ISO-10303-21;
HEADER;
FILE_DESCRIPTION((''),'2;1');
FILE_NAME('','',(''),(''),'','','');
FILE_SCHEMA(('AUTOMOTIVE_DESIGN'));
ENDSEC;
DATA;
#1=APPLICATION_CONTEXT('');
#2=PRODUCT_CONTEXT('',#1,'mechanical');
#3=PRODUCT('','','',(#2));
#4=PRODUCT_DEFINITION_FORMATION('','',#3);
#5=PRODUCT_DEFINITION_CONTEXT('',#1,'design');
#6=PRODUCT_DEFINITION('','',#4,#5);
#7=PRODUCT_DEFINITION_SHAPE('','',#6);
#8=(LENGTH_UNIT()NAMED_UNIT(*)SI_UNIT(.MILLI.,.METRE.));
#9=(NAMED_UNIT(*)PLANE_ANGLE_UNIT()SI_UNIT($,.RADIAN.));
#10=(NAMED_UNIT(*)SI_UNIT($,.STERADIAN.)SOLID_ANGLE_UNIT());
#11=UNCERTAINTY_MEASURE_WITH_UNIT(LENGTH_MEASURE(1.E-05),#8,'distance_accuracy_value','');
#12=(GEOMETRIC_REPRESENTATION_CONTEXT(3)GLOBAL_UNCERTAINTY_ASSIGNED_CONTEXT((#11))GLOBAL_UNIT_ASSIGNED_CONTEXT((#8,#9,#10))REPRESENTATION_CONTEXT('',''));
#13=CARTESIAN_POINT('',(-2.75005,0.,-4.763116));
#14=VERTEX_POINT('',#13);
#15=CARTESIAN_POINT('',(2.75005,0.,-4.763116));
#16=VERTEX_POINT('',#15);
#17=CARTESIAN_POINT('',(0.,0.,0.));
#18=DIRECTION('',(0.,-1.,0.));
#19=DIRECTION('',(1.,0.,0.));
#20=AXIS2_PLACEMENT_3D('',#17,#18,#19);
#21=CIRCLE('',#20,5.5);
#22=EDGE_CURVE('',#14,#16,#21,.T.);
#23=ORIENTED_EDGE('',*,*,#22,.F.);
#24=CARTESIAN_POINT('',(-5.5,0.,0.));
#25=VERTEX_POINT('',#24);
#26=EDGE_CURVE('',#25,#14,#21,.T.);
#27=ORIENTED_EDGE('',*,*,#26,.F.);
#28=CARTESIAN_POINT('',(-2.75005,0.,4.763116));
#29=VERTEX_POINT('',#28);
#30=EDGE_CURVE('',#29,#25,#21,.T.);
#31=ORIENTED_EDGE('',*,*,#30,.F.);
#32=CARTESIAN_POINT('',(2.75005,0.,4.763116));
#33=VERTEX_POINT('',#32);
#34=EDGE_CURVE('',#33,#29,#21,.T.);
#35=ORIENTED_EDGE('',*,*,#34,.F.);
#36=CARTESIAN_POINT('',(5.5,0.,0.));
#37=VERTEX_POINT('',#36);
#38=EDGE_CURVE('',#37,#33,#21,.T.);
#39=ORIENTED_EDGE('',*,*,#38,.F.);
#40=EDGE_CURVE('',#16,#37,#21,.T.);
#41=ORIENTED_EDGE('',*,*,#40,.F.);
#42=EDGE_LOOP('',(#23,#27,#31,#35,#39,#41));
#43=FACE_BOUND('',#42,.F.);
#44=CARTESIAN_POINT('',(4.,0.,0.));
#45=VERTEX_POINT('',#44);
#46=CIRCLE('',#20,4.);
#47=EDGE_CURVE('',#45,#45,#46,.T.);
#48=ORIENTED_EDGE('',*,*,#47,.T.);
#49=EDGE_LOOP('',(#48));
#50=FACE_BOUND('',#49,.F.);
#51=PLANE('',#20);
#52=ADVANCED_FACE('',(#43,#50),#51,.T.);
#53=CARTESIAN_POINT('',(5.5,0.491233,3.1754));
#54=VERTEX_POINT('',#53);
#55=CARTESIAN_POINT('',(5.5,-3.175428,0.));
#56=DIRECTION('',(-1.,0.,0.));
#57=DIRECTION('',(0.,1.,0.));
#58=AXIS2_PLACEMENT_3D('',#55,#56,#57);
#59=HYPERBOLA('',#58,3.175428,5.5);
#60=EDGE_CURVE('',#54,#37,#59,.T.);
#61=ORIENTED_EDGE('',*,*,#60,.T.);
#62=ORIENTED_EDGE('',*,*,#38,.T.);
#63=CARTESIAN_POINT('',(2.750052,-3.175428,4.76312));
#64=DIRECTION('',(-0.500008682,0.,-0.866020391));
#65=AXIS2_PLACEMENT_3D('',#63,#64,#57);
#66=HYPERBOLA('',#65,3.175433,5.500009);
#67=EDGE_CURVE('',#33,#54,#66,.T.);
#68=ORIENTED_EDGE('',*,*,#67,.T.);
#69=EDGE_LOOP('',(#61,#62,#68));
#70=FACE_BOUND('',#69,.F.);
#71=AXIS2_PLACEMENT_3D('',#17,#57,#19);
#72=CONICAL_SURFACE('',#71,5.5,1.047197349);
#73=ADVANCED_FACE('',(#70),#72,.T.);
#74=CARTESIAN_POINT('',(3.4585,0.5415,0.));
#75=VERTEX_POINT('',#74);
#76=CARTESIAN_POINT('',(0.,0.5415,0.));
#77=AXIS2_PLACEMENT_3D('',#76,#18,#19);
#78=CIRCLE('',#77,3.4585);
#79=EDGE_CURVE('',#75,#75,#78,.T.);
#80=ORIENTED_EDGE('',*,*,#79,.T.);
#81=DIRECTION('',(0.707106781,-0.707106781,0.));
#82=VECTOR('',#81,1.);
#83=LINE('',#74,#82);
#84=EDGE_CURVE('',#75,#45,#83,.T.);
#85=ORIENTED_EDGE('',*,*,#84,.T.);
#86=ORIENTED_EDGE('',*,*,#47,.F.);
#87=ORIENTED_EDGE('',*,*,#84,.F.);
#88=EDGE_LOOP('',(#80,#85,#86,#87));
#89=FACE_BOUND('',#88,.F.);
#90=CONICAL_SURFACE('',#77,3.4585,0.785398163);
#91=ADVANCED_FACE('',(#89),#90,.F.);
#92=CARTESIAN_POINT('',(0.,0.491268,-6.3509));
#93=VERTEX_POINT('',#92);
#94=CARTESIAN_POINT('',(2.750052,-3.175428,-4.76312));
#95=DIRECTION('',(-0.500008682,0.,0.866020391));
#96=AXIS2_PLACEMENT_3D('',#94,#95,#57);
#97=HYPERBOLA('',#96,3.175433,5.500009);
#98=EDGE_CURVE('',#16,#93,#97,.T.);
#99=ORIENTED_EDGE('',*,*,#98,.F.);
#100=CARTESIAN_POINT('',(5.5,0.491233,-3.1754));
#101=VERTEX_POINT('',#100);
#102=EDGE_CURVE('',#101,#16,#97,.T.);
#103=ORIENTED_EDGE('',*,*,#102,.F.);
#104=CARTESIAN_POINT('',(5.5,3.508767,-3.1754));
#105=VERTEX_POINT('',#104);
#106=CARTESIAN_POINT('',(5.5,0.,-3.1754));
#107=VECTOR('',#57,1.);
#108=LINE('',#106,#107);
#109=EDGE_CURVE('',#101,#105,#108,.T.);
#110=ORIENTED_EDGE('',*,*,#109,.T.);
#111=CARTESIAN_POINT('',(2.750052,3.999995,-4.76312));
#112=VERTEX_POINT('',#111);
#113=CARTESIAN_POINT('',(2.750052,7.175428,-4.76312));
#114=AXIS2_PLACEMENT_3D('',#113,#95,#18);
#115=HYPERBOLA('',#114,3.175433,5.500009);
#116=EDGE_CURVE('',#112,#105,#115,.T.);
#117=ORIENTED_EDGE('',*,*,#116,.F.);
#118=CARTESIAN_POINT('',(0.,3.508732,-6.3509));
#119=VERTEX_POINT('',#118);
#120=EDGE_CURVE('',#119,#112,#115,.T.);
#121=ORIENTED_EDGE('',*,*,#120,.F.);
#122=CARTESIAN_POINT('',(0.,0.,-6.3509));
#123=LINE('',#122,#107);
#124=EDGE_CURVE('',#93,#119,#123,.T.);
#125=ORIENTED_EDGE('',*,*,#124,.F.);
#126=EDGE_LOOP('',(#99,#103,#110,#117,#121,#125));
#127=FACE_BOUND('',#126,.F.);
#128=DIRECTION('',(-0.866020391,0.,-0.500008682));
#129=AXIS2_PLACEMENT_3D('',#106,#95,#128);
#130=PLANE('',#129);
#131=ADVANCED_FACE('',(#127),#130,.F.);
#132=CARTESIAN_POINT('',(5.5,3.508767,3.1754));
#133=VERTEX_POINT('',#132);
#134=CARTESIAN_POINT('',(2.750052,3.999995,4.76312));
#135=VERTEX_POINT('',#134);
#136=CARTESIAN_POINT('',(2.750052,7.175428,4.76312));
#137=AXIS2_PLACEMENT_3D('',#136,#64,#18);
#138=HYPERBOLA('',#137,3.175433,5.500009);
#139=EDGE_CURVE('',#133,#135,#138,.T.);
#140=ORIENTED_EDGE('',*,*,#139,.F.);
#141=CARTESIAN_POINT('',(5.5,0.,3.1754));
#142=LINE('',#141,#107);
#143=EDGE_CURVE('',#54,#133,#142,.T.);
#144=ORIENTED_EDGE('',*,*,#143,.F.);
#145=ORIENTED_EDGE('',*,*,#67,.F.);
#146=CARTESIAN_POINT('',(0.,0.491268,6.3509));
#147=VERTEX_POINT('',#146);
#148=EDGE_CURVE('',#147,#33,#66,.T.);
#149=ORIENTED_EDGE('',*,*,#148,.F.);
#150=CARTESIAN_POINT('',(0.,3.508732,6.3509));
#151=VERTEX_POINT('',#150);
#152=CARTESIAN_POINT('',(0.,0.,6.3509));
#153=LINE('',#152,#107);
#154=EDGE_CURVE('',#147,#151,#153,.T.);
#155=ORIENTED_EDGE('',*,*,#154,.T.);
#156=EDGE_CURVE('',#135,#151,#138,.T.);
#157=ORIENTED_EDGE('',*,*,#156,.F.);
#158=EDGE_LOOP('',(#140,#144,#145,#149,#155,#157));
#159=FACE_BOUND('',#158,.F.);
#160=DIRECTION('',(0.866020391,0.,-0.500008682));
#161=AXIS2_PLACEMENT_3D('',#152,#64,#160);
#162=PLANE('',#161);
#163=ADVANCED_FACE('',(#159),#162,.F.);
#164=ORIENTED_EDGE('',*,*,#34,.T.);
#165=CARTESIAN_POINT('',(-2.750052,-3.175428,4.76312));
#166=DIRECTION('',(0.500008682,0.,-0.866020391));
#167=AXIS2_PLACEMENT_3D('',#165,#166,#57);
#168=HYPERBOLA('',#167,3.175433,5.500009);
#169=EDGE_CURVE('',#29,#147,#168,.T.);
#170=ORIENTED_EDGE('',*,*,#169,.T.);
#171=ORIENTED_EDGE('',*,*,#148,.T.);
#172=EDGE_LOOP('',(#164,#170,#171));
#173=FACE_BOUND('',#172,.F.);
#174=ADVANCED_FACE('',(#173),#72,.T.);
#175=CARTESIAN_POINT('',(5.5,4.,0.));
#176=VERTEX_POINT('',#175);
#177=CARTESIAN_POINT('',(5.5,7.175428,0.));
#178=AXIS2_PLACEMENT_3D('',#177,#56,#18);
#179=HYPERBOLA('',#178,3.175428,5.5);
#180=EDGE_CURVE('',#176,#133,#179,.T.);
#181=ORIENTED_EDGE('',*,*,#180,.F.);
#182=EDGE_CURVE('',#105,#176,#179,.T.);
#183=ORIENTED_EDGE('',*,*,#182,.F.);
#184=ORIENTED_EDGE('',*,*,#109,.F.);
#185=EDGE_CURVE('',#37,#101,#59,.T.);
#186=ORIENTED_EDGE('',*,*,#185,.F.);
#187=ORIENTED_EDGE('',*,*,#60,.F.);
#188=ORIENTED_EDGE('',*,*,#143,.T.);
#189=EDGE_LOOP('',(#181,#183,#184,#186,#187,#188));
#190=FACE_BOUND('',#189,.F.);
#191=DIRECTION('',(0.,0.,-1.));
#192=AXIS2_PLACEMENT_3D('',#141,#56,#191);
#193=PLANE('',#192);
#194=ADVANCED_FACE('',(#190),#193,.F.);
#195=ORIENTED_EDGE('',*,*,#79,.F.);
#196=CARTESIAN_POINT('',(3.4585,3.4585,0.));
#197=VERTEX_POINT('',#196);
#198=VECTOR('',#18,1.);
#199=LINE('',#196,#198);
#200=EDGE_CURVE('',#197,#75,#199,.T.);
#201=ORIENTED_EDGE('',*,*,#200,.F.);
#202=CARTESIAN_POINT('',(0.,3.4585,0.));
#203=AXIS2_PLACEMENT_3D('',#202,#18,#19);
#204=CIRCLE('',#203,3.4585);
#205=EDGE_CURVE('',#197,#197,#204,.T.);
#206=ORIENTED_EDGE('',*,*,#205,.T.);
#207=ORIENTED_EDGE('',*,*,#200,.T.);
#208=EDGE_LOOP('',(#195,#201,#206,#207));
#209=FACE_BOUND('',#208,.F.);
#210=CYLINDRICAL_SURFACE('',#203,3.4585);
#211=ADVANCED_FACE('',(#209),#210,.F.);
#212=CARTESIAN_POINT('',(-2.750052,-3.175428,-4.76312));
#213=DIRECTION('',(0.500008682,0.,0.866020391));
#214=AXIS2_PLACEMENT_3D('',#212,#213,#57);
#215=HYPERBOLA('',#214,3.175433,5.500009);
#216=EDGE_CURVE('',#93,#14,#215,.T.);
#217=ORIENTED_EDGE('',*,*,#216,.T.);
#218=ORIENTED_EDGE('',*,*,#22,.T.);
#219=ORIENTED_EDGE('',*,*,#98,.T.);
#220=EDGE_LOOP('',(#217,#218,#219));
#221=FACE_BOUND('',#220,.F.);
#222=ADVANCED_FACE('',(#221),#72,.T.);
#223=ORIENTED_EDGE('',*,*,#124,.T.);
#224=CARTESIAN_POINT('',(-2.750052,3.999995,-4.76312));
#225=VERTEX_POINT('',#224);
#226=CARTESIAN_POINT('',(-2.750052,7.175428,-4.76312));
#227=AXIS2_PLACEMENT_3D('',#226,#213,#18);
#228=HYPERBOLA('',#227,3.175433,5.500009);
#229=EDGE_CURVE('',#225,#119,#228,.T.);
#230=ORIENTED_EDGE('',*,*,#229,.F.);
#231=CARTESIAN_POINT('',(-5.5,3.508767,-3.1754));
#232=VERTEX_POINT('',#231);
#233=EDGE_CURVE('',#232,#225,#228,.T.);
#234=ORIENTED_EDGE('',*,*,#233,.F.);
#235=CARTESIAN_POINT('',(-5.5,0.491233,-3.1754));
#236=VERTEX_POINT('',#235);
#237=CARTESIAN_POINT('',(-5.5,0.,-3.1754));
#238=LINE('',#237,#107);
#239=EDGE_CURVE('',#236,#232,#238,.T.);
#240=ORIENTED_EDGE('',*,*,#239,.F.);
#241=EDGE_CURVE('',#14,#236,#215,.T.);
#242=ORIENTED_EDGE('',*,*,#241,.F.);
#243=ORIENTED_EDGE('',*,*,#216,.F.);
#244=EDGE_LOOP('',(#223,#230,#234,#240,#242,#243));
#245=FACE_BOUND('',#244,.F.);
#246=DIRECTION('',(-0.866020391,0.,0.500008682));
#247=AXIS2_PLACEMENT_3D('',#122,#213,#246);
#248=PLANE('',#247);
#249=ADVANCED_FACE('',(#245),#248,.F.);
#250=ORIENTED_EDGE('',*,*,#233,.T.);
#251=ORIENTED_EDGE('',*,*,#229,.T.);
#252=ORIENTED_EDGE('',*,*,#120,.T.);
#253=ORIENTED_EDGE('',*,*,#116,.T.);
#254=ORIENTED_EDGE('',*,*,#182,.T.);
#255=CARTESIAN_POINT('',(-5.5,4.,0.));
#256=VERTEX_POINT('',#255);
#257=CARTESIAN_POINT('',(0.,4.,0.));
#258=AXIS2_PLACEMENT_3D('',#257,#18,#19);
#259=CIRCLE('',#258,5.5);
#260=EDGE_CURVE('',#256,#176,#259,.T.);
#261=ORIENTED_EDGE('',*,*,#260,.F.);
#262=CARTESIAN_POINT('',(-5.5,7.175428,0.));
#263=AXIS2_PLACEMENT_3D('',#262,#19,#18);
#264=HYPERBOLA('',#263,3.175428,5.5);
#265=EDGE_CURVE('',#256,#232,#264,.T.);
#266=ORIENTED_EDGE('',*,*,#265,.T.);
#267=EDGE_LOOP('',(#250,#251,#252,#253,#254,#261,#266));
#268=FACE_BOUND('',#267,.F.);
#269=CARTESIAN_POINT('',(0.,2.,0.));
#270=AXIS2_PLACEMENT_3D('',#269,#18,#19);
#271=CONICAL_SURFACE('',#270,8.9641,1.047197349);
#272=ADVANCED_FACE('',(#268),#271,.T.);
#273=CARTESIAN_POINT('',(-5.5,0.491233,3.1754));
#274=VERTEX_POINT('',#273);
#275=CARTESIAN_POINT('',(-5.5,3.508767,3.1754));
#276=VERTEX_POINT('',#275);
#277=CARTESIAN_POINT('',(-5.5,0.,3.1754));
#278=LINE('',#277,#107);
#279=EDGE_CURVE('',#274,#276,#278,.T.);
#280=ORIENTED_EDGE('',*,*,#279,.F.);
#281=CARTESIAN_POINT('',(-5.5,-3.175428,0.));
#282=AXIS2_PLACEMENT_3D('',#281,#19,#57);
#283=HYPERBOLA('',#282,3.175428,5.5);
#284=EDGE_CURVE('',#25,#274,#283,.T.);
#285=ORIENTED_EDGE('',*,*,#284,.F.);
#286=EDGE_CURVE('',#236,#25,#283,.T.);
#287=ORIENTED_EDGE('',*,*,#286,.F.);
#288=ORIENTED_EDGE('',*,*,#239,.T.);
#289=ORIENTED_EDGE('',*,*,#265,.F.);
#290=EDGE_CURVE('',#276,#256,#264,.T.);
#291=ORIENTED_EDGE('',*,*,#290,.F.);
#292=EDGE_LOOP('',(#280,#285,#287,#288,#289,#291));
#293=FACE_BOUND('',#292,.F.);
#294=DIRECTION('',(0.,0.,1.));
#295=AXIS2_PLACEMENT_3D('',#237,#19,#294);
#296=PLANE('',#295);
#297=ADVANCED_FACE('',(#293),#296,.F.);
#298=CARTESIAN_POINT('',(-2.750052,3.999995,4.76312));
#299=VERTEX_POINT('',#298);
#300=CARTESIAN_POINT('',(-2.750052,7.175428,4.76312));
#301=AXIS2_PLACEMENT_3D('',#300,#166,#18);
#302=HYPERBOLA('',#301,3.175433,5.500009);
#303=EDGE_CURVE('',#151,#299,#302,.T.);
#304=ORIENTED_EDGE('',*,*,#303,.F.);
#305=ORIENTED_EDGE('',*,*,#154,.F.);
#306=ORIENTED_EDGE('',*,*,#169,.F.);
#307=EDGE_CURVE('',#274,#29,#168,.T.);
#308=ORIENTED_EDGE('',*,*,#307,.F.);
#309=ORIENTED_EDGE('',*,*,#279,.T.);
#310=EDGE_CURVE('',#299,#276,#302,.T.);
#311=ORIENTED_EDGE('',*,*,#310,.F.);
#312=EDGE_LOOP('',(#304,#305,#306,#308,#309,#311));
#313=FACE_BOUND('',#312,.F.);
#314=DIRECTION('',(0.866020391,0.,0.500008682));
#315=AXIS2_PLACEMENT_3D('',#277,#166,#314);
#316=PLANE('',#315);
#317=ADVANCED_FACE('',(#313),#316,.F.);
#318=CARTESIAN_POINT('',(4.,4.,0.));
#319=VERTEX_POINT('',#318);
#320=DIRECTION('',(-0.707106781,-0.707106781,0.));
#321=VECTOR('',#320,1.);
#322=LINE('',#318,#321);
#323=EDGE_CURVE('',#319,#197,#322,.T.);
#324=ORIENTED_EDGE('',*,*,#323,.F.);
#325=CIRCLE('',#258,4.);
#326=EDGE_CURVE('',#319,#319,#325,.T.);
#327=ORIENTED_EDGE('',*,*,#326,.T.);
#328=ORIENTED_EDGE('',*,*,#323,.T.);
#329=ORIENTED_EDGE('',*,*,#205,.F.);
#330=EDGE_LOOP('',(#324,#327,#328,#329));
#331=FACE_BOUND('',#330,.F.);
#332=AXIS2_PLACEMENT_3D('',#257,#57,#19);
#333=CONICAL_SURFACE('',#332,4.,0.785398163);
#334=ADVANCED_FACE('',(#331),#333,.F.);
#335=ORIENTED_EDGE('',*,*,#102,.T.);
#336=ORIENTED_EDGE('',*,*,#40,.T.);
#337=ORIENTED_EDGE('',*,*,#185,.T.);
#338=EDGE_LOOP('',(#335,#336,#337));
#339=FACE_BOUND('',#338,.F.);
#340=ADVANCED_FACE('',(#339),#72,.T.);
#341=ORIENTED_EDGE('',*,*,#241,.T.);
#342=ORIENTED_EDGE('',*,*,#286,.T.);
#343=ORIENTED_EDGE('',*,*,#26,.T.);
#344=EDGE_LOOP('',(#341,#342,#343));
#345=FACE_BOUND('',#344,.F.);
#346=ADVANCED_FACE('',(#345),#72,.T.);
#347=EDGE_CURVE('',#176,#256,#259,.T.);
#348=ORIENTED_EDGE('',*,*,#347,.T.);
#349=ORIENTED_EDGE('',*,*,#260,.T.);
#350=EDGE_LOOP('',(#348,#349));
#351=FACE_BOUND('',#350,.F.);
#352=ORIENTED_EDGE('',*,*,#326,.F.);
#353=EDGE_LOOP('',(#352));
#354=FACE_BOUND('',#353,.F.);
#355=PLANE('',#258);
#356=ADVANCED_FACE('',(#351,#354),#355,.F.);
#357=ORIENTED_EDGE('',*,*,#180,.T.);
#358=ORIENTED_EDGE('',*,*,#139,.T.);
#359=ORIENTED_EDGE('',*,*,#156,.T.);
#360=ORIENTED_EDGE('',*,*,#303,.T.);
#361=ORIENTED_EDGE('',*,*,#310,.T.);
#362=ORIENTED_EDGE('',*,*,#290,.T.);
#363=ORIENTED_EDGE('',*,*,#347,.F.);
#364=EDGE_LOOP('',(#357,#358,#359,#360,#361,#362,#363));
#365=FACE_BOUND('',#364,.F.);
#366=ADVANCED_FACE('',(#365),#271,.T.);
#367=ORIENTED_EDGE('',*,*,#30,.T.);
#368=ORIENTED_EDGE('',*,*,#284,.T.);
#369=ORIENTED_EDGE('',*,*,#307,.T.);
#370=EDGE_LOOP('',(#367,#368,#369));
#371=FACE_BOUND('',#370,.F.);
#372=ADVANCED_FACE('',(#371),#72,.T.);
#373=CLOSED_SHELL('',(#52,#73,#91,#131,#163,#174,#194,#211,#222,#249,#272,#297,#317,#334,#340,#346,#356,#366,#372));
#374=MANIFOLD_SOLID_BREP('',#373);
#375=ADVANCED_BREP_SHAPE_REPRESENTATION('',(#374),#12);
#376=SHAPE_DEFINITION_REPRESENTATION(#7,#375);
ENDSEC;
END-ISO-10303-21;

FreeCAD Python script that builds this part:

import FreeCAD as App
import Part
import Sketcher
Q = App.Units.Quantity

doc = App.newDocument("Part")
body = doc.addObject("PartDesign::Body", "Body")

# Sketch on XY plane
sketch1 = doc.addObject("Sketcher::SketchObject", "Sketch")
body.addObject(sketch1)
sketch1.AttachmentSupport = (doc.XY_Plane, [""])
sketch1.MapMode = "FlatFace"
sketch1.addGeometry(Part.LineSegment(App.Vector(4, 4, 0), App.Vector(3.5, 3.5, 0)), False)
sketch1.addGeometry(Part.LineSegment(App.Vector(3.5, 3.5, 0), App.Vector(3.5, 0.5, 0)), False)
sketch1.addGeometry(Part.LineSegment(App.Vector(3.5, 0.5, 0), App.Vector(4, 0, 0)), False)
sketch1.addGeometry(Part.LineSegment(App.Vector(4, 0, 0), App.Vector(5.5, 0, 0)), False)
sketch1.addGeometry(Part.LineSegment(App.Vector(5.5, 0, 0), App.Vector(9, 2, 0)), False)
sketch1.addGeometry(Part.LineSegment(App.Vector(9, 2, 0), App.Vector(5.5, 4, 0)), False)
sketch1.addGeometry(Part.LineSegment(App.Vector(5.5, 4, 0), App.Vector(4, 4, 0)), False)
sketch1.addConstraint(Sketcher.Constraint("Coincident", 0, 2, 1, 1))
sketch1.addConstraint(Sketcher.Constraint("Coincident", 1, 2, 2, 1))
sketch1.addConstraint(Sketcher.Constraint("Coincident", 2, 2, 3, 1))
sketch1.addConstraint(Sketcher.Constraint("Coincident", 3, 2, 4, 1))
sketch1.addConstraint(Sketcher.Constraint("Coincident", 4, 2, 5, 1))
sketch1.addConstraint(Sketcher.Constraint("Coincident", 5, 2, 6, 1))
sketch1.addConstraint(Sketcher.Constraint("Coincident", 6, 2, 0, 1))
sketch1.addConstraint(Sketcher.Constraint("Vertical", 1))
sketch1.addConstraint(Sketcher.Constraint("Horizontal", 3))
sketch1.addConstraint(Sketcher.Constraint("Horizontal", 6))
sketch1.addConstraint(Sketcher.Constraint("PointOnObject", 2, 2, -1))
sketch1.addConstraint(Sketcher.Constraint("Perpendicular", 0, 2))
sketch1.addConstraint(Sketcher.Constraint("Vertical", 3, 2, 5, 2))
sketch1.addConstraint(Sketcher.Constraint("Vertical", 2, 2, 6, 2))
sketch1.addConstraint(Sketcher.Constraint("Equal", 0, 2))
sketch1.addConstraint(Sketcher.Constraint("Equal", 4, 5))
sketch1.addConstraint(Sketcher.Constraint("Angle", 4, Q("30 deg")))
sketch1.addConstraint(Sketcher.Constraint("Distance", 4, Q("4 mm")))
sketch1.addConstraint(Sketcher.Constraint("DistanceX", 3, 1, 3, 2, Q("1.5 mm")))
sketch1.addConstraint(Sketcher.Constraint("DistanceX", -1, 1, 2, 2, Q("4 mm")))
sketch1.addConstraint(Sketcher.Constraint("DistanceY", 1, 2, 1, 1, Q("2.917 mm")))
revolution = doc.addObject("PartDesign::Revolution", "Revolution")
body.addObject(revolution)
revolution.Profile = sketch1
revolution.ReferenceAxis = (sketch1, ["V_Axis"])
revolution.Angle = 360

# Sketch on XZ plane
sketch2 = doc.addObject("Sketcher::SketchObject", "Sketch001")
body.addObject(sketch2)
sketch2.AttachmentSupport = (doc.XZ_Plane, [""])
sketch2.MapMode = "FlatFace"
sketch2.addGeometry(Part.LineSegment(App.Vector(-50, -50, 0), App.Vector(-50, 50, 0)), False)
sketch2.addGeometry(Part.LineSegment(App.Vector(-50, 50, 0), App.Vector(50, 50, 0)), False)
sketch2.addGeometry(Part.LineSegment(App.Vector(50, 50, 0), App.Vector(50, -50, 0)), False)
sketch2.addGeometry(Part.LineSegment(App.Vector(50, -50, 0), App.Vector(-50, -50, 0)), False)
sketch2.addGeometry(Part.LineSegment(App.Vector(0, 6, 0), App.Vector(-6, 3, 0)), False)
sketch2.addGeometry(Part.LineSegment(App.Vector(-6, 3, 0), App.Vector(-6, -3, 0)), False)
sketch2.addGeometry(Part.LineSegment(App.Vector(-6, -3, 0), App.Vector(0, -6, 0)), False)
sketch2.addGeometry(Part.LineSegment(App.Vector(0, -6, 0), App.Vector(6, -3, 0)), False)
sketch2.addGeometry(Part.LineSegment(App.Vector(6, -3, 0), App.Vector(6, 3, 0)), False)
sketch2.addGeometry(Part.LineSegment(App.Vector(6, 3, 0), App.Vector(0, 6, 0)), False)
sketch2.addConstraint(Sketcher.Constraint("Coincident", 0, 2, 1, 1))
sketch2.addConstraint(Sketcher.Constraint("Coincident", 1, 2, 2, 1))
sketch2.addConstraint(Sketcher.Constraint("Coincident", 2, 2, 3, 1))
sketch2.addConstraint(Sketcher.Constraint("Coincident", 3, 2, 0, 1))
sketch2.addConstraint(Sketcher.Constraint("Coincident", 4, 2, 5, 1))
sketch2.addConstraint(Sketcher.Constraint("Coincident", 5, 2, 6, 1))
sketch2.addConstraint(Sketcher.Constraint("Coincident", 6, 2, 7, 1))
sketch2.addConstraint(Sketcher.Constraint("Coincident", 7, 2, 8, 1))
sketch2.addConstraint(Sketcher.Constraint("Coincident", 8, 2, 9, 1))
sketch2.addConstraint(Sketcher.Constraint("Coincident", 9, 2, 4, 1))
sketch2.addConstraint(Sketcher.Constraint("Vertical", 0))
sketch2.addConstraint(Sketcher.Constraint("Horizontal", 1))
sketch2.addConstraint(Sketcher.Constraint("Vertical", 2))
sketch2.addConstraint(Sketcher.Constraint("Horizontal", 3))
sketch2.addConstraint(Sketcher.Constraint("Vertical", 5))
sketch2.addConstraint(Sketcher.Constraint("Vertical", 8))
sketch2.addConstraint(Sketcher.Constraint("Symmetric", 0, 2, 2, 2, -1, 1))
sketch2.addConstraint(Sketcher.Constraint("Symmetric", 4, 2, 7, 2, -1, 1))
sketch2.addConstraint(Sketcher.Constraint("Symmetric", 6, 2, 9, 2, -1, 1))
sketch2.addConstraint(Sketcher.Constraint("PointOnObject", 6, 2, -2))
sketch2.addConstraint(Sketcher.Constraint("Parallel", 6, 9))
sketch2.addConstraint(Sketcher.Constraint("Horizontal", 5, 2, 7, 2))
sketch2.addConstraint(Sketcher.Constraint("Equal", 3, 0))
sketch2.addConstraint(Sketcher.Constraint("DistanceX", 1, 1, 1, 2, Q("100 mm")))
sketch2.addConstraint(Sketcher.Constraint("Angle", 4, Q("-149.9994 deg")))
sketch2.addConstraint(Sketcher.Constraint("DistanceX", 5, 2, 7, 2, Q("11 mm")))
sketch2.addConstraint(Sketcher.Constraint("DistanceY", 5, 2, 5, 1, Q("6.3508 mm")))
pocket1 = doc.addObject("PartDesign::Pocket", "Pocket")
body.addObject(pocket1)
pocket1.Profile = sketch2
pocket1.Length = 50

doc.recompute()
